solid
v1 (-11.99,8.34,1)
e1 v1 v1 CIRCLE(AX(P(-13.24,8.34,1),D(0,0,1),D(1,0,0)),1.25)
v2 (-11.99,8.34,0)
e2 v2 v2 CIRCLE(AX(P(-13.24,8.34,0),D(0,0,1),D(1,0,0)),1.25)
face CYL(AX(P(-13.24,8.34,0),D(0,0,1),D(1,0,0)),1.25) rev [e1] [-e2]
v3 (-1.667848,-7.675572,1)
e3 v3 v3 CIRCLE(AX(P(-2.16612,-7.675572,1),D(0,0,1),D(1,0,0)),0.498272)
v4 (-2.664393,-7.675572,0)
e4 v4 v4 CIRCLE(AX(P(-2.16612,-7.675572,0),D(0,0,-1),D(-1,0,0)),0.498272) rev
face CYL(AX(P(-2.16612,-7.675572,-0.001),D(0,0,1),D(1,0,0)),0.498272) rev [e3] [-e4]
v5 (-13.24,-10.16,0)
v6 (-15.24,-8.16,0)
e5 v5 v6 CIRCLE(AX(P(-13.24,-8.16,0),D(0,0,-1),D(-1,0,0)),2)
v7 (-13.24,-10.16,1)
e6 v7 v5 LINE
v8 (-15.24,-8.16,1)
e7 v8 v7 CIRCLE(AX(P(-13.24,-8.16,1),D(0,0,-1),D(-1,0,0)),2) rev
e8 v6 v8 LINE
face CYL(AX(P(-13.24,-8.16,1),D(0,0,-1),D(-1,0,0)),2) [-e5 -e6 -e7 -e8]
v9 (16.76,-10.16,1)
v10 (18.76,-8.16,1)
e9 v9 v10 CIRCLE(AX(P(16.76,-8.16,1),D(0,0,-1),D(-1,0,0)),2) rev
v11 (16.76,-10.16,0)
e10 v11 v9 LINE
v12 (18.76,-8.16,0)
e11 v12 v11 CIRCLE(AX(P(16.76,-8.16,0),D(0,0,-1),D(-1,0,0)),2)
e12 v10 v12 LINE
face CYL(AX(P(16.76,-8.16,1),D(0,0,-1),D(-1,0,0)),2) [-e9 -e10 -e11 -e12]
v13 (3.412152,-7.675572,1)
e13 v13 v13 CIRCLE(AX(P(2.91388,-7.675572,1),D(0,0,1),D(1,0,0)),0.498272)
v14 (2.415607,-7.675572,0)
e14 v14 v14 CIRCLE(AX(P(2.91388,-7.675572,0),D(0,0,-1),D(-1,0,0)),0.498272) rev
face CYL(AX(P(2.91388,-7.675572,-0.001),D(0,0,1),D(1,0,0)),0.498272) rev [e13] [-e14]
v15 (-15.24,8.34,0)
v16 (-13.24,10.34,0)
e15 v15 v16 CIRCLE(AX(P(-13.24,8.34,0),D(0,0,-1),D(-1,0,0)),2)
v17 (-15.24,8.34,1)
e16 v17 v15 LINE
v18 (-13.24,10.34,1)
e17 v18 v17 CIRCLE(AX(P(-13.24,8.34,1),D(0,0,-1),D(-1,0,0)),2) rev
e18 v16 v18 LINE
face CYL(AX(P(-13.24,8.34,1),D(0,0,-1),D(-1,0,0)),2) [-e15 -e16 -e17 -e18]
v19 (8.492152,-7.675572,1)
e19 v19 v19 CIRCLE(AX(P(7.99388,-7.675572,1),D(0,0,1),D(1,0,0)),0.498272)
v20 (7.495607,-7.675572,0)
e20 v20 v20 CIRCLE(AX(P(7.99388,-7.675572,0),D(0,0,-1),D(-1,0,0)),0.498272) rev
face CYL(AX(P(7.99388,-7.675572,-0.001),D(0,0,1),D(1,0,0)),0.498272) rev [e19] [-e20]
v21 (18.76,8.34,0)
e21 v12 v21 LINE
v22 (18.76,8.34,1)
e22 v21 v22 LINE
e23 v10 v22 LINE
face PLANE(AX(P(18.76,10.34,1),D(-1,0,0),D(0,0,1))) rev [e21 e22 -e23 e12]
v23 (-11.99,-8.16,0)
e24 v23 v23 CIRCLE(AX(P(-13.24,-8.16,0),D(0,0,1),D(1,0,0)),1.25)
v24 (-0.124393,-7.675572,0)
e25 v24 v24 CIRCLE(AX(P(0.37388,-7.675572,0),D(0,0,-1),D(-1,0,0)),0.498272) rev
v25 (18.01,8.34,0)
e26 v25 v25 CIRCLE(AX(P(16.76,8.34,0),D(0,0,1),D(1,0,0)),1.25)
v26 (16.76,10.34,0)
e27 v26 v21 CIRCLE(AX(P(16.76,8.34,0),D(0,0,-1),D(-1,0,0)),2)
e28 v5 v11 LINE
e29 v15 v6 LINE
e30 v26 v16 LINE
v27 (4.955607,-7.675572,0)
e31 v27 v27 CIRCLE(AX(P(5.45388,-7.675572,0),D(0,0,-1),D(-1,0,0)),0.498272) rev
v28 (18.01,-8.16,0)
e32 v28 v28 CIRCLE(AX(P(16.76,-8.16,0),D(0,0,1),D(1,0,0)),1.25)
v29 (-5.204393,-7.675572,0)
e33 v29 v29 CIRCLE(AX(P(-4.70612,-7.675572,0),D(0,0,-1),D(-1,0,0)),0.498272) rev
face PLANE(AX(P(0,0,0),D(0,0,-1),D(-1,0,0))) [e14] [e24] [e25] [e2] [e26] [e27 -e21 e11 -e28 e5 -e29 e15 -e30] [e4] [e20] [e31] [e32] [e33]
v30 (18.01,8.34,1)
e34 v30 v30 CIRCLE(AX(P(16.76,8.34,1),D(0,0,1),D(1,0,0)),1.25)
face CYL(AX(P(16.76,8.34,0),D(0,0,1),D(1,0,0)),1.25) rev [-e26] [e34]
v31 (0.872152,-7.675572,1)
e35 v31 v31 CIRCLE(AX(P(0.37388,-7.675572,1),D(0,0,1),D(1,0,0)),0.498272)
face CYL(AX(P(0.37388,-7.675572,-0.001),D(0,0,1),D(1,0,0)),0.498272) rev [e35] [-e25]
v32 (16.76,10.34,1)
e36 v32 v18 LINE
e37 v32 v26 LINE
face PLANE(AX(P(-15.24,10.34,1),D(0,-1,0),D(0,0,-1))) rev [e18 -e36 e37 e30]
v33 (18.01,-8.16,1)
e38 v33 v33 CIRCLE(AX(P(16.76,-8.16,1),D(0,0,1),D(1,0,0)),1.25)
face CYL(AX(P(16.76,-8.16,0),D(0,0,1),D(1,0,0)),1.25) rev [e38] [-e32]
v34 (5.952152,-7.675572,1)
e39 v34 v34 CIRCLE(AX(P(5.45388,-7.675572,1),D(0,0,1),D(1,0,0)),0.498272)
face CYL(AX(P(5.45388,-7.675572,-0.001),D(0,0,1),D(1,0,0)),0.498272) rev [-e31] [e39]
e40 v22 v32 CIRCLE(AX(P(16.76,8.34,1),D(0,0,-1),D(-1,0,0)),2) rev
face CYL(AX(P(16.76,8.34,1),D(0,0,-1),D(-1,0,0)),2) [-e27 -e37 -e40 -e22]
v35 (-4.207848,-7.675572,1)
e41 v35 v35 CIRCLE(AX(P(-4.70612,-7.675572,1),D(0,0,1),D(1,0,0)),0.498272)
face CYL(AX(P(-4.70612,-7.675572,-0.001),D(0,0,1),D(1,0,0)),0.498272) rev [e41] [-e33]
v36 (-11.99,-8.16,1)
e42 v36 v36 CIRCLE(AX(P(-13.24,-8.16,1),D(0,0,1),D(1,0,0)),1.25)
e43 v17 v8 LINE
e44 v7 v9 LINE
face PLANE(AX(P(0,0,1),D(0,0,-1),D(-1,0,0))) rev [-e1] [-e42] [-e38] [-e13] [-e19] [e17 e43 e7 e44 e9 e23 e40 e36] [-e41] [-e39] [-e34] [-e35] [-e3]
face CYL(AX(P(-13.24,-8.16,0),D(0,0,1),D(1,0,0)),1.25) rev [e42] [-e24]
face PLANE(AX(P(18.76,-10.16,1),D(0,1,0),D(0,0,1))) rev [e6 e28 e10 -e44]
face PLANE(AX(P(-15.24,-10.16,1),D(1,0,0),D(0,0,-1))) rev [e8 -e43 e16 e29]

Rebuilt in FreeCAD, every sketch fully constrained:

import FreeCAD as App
import Part
import Sketcher
Q = App.Units.Quantity


def edges_at(feature, points):
    """Names of the edges that pass closest to the given points."""
    edges = feature.Shape.Edges
    near = lambda p: min(range(len(edges)), key=lambda i: edges[i].distToShape(Part.Vertex(*p))[0])
    return sorted({f"Edge{near(p) + 1}" for p in points})

doc = App.newDocument("Part")
params = doc.addObject("Spreadsheet::Sheet", "Params")
for row, (alias, value) in enumerate([
    ("sketch1_width", "34 mm"),
    ("sketch1_height", "20.5 mm"),
    ("pad1_length", "1 mm"),
    ("sketch8_diameter", "2.5 mm"),
    ("fillet_radius", "2 mm"),
], start=1):
    params.set(f"A{row}", alias)
    params.set(f"B{row}", "=" + value)
    params.setAlias(f"B{row}", alias)

body = doc.addObject("PartDesign::Body", "Body")

# Sketch on XY plane
sketch1 = body.newObject("Sketcher::SketchObject", "Sketch")
sketch1.AttachmentSupport = (doc.getObject("XY_Plane"), [""])
sketch1.MapMode = "FlatFace"
sketch1.addGeometry([
    Part.LineSegment(App.Vector(-15, 10, 0), App.Vector(-15, -10, 0)),
    Part.LineSegment(App.Vector(-15, -10, 0), App.Vector(19, -10, 0)),
    Part.LineSegment(App.Vector(19, -10, 0), App.Vector(19, 10, 0)),
    Part.LineSegment(App.Vector(19, 10, 0), App.Vector(-15, 10, 0)),
], False)
sketch1.addConstraint([
    Sketcher.Constraint("Coincident", 0, 2, 1, 1),
    Sketcher.Constraint("Coincident", 1, 2, 2, 1),
    Sketcher.Constraint("Coincident", 2, 2, 3, 1),
    Sketcher.Constraint("Coincident", 3, 2, 0, 1),
    Sketcher.Constraint("Vertical", 0),
    Sketcher.Constraint("Horizontal", 1),
    Sketcher.Constraint("Vertical", 2),
    Sketcher.Constraint("Horizontal", 3),
    Sketcher.Constraint("DistanceX", 1, 1, 1, 2, Q("34 mm")),
    Sketcher.Constraint("DistanceY", 0, 2, 0, 1, Q("20.5 mm")),
    Sketcher.Constraint("DistanceX", 0, 2, -1, 1, Q("15.24 mm")),
    Sketcher.Constraint("DistanceY", 0, 2, -1, 1, Q("10.16 mm")),
])
sketch1.setExpression("Constraints[8]", "Params.sketch1_width")
sketch1.setExpression("Constraints[9]", "Params.sketch1_height")
pad1 = body.newObject("PartDesign::Pad", "Pad")
pad1.Profile = sketch1
pad1.setExpression("Length", "Params.pad1_length")

# Sketch on XY plane
sketch2 = body.newObject("Sketcher::SketchObject", "Sketch001")
sketch2.AttachmentSupport = (doc.getObject("XY_Plane"), [""])
sketch2.MapMode = "FlatFace"
sketch2.AttachmentOffset = App.Placement(App.Vector(0, 0, 1), App.Rotation())
sketch2.addGeometry(Part.Circle(App.Vector(-4.71, -7.68, 0), App.Vector(0, 0, 1), 0.5), False)
sketch2.addConstraint([
    Sketcher.Constraint("Diameter", 0, Q("0.996544 mm")),
    Sketcher.Constraint("DistanceX", 0, 3, -1, 1, Q("4.70612 mm")),
    Sketcher.Constraint("DistanceY", 0, 3, -1, 1, Q("7.675572 mm")),
])
pocket1 = body.newObject("PartDesign::Pocket", "Pocket")
pocket1.Profile = sketch2
pocket1.Type = "UpToFirst"

# Sketch on XY plane
sketch3 = body.newObject("Sketcher::SketchObject", "Sketch002")
sketch3.AttachmentSupport = (doc.getObject("XY_Plane"), [""])
sketch3.MapMode = "FlatFace"
sketch3.AttachmentOffset = App.Placement(App.Vector(0, 0, 1), App.Rotation())
sketch3.addGeometry(Part.Circle(App.Vector(-2.17, -7.68, 0), App.Vector(0, 0, 1), 0.5), False)
sketch3.addConstraint([
    Sketcher.Constraint("Diameter", 0, Q("0.996544 mm")),
    Sketcher.Constraint("DistanceX", 0, 3, -1, 1, Q("2.16612 mm")),
    Sketcher.Constraint("DistanceY", 0, 3, -1, 1, Q("7.675572 mm")),
])
pocket2 = body.newObject("PartDesign::Pocket", "Pocket001")
pocket2.Profile = sketch3
pocket2.Type = "UpToFirst"

# Sketch on XY plane
sketch4 = body.newObject("Sketcher::SketchObject", "Sketch003")
sketch4.AttachmentSupport = (doc.getObject("XY_Plane"), [""])
sketch4.MapMode = "FlatFace"
sketch4.AttachmentOffset = App.Placement(App.Vector(0, 0, 1), App.Rotation())
sketch4.addGeometry(Part.Circle(App.Vector(0.37, -7.68, 0), App.Vector(0, 0, 1), 0.5), False)
sketch4.addConstraint([
    Sketcher.Constraint("Diameter", 0, Q("0.996544 mm")),
    Sketcher.Constraint("DistanceX", -1, 1, 0, 3, Q("0.37388 mm")),
    Sketcher.Constraint("DistanceY", 0, 3, -1, 1, Q("7.675572 mm")),
])
pocket3 = body.newObject("PartDesign::Pocket", "Pocket002")
pocket3.Profile = sketch4
pocket3.Type = "UpToFirst"

# Sketch on XY plane
sketch5 = body.newObject("Sketcher::SketchObject", "Sketch004")
sketch5.AttachmentSupport = (doc.getObject("XY_Plane"), [""])
sketch5.MapMode = "FlatFace"
sketch5.AttachmentOffset = App.Placement(App.Vector(0, 0, 1), App.Rotation())
sketch5.addGeometry(Part.Circle(App.Vector(2.91, -7.68, 0), App.Vector(0, 0, 1), 0.5), False)
sketch5.addConstraint([
    Sketcher.Constraint("Diameter", 0, Q("0.996544 mm")),
    Sketcher.Constraint("DistanceX", -1, 1, 0, 3, Q("2.91388 mm")),
    Sketcher.Constraint("DistanceY", 0, 3, -1, 1, Q("7.675572 mm")),
])
pocket4 = body.newObject("PartDesign::Pocket", "Pocket003")
pocket4.Profile = sketch5
pocket4.Type = "UpToFirst"

# Sketch on XY plane
sketch6 = body.newObject("Sketcher::SketchObject", "Sketch005")
sketch6.AttachmentSupport = (doc.getObject("XY_Plane"), [""])
sketch6.MapMode = "FlatFace"
sketch6.AttachmentOffset = App.Placement(App.Vector(0, 0, 1), App.Rotation())
sketch6.addGeometry(Part.Circle(App.Vector(5.45, -7.68, 0), App.Vector(0, 0, 1), 0.5), False)
sketch6.addConstraint([
    Sketcher.Constraint("Diameter", 0, Q("0.996544 mm")),
    Sketcher.Constraint("DistanceX", -1, 1, 0, 3, Q("5.45388 mm")),
    Sketcher.Constraint("DistanceY", 0, 3, -1, 1, Q("7.675572 mm")),
])
pocket5 = body.newObject("PartDesign::Pocket", "Pocket004")
pocket5.Profile = sketch6
pocket5.Type = "UpToFirst"

# Sketch on XY plane
sketch7 = body.newObject("Sketcher::SketchObject", "Sketch006")
sketch7.AttachmentSupport = (doc.getObject("XY_Plane"), [""])
sketch7.MapMode = "FlatFace"
sketch7.AttachmentOffset = App.Placement(App.Vector(0, 0, 1), App.Rotation())
sketch7.addGeometry(Part.Circle(App.Vector(7.99, -7.68, 0), App.Vector(0, 0, 1), 0.5), False)
sketch7.addConstraint([
    Sketcher.Constraint("Diameter", 0, Q("0.996544 mm")),
    Sketcher.Constraint("DistanceX", -1, 1, 0, 3, Q("7.99388 mm")),
    Sketcher.Constraint("DistanceY", 0, 3, -1, 1, Q("7.675572 mm")),
])
pocket6 = body.newObject("PartDesign::Pocket", "Pocket005")
pocket6.Profile = sketch7
pocket6.Type = "UpToFirst"

# Sketch on XY plane
sketch8 = body.newObject("Sketcher::SketchObject", "Sketch007")
sketch8.AttachmentSupport = (doc.getObject("XY_Plane"), [""])
sketch8.MapMode = "FlatFace"
sketch8.AttachmentOffset = App.Placement(App.Vector(0, 0, 1), App.Rotation())
sketch8.addGeometry([
    Part.Circle(App.Vector(-13.2, 8.3, 0), App.Vector(0, 0, 1), 1.2),
    Part.Circle(App.Vector(16.8, 8.3, 0), App.Vector(0, 0, 1), 1.2),
    Part.Circle(App.Vector(16.8, -8.2, 0), App.Vector(0, 0, 1), 1.2),
    Part.Circle(App.Vector(-13.2, -8.2, 0), App.Vector(0, 0, 1), 1.2),
], False)
sketch8.addConstraint([
    Sketcher.Constraint("Equal", 0, 1),
    Sketcher.Constraint("Equal", 1, 2),
    Sketcher.Constraint("Equal", 2, 3),
    Sketcher.Constraint("Horizontal", 0, 3, 1, 3),
    Sketcher.Constraint("Horizontal", 2, 3, 3, 3),
    Sketcher.Constraint("Vertical", 1, 3, 2, 3),
    Sketcher.Constraint("Vertical", 0, 3, 3, 3),
    Sketcher.Constraint("Diameter", 0, Q("2.5 mm")),
    Sketcher.Constraint("DistanceX", 0, 3, 1, 3, Q("30 mm")),
    Sketcher.Constraint("DistanceY", 2, 3, 1, 3, Q("16.5 mm")),
    Sketcher.Constraint("DistanceX", 0, 3, -1, 1, Q("13.24 mm")),
    Sketcher.Constraint("DistanceY", -1, 1, 0, 3, Q("8.34 mm")),
])
sketch8.setExpression("Constraints[7]", "Params.sketch8_diameter")
pocket7 = body.newObject("PartDesign::Pocket", "Pocket006")
pocket7.Profile = sketch8
pocket7.Type = "ThroughAll"
doc.recompute()

fillet = body.newObject("PartDesign::Fillet", "Fillet")
fillet.Base = (pocket7, edges_at(pocket7, [
    (-15.24, 10.34, 0.5),
    (18.76, 10.34, 0.5),
    (18.76, -10.16, 0.5),
    (-15.24, -10.16, 0.5),
]))
fillet.setExpression("Radius", "Params.fillet_radius")

doc.recompute()
